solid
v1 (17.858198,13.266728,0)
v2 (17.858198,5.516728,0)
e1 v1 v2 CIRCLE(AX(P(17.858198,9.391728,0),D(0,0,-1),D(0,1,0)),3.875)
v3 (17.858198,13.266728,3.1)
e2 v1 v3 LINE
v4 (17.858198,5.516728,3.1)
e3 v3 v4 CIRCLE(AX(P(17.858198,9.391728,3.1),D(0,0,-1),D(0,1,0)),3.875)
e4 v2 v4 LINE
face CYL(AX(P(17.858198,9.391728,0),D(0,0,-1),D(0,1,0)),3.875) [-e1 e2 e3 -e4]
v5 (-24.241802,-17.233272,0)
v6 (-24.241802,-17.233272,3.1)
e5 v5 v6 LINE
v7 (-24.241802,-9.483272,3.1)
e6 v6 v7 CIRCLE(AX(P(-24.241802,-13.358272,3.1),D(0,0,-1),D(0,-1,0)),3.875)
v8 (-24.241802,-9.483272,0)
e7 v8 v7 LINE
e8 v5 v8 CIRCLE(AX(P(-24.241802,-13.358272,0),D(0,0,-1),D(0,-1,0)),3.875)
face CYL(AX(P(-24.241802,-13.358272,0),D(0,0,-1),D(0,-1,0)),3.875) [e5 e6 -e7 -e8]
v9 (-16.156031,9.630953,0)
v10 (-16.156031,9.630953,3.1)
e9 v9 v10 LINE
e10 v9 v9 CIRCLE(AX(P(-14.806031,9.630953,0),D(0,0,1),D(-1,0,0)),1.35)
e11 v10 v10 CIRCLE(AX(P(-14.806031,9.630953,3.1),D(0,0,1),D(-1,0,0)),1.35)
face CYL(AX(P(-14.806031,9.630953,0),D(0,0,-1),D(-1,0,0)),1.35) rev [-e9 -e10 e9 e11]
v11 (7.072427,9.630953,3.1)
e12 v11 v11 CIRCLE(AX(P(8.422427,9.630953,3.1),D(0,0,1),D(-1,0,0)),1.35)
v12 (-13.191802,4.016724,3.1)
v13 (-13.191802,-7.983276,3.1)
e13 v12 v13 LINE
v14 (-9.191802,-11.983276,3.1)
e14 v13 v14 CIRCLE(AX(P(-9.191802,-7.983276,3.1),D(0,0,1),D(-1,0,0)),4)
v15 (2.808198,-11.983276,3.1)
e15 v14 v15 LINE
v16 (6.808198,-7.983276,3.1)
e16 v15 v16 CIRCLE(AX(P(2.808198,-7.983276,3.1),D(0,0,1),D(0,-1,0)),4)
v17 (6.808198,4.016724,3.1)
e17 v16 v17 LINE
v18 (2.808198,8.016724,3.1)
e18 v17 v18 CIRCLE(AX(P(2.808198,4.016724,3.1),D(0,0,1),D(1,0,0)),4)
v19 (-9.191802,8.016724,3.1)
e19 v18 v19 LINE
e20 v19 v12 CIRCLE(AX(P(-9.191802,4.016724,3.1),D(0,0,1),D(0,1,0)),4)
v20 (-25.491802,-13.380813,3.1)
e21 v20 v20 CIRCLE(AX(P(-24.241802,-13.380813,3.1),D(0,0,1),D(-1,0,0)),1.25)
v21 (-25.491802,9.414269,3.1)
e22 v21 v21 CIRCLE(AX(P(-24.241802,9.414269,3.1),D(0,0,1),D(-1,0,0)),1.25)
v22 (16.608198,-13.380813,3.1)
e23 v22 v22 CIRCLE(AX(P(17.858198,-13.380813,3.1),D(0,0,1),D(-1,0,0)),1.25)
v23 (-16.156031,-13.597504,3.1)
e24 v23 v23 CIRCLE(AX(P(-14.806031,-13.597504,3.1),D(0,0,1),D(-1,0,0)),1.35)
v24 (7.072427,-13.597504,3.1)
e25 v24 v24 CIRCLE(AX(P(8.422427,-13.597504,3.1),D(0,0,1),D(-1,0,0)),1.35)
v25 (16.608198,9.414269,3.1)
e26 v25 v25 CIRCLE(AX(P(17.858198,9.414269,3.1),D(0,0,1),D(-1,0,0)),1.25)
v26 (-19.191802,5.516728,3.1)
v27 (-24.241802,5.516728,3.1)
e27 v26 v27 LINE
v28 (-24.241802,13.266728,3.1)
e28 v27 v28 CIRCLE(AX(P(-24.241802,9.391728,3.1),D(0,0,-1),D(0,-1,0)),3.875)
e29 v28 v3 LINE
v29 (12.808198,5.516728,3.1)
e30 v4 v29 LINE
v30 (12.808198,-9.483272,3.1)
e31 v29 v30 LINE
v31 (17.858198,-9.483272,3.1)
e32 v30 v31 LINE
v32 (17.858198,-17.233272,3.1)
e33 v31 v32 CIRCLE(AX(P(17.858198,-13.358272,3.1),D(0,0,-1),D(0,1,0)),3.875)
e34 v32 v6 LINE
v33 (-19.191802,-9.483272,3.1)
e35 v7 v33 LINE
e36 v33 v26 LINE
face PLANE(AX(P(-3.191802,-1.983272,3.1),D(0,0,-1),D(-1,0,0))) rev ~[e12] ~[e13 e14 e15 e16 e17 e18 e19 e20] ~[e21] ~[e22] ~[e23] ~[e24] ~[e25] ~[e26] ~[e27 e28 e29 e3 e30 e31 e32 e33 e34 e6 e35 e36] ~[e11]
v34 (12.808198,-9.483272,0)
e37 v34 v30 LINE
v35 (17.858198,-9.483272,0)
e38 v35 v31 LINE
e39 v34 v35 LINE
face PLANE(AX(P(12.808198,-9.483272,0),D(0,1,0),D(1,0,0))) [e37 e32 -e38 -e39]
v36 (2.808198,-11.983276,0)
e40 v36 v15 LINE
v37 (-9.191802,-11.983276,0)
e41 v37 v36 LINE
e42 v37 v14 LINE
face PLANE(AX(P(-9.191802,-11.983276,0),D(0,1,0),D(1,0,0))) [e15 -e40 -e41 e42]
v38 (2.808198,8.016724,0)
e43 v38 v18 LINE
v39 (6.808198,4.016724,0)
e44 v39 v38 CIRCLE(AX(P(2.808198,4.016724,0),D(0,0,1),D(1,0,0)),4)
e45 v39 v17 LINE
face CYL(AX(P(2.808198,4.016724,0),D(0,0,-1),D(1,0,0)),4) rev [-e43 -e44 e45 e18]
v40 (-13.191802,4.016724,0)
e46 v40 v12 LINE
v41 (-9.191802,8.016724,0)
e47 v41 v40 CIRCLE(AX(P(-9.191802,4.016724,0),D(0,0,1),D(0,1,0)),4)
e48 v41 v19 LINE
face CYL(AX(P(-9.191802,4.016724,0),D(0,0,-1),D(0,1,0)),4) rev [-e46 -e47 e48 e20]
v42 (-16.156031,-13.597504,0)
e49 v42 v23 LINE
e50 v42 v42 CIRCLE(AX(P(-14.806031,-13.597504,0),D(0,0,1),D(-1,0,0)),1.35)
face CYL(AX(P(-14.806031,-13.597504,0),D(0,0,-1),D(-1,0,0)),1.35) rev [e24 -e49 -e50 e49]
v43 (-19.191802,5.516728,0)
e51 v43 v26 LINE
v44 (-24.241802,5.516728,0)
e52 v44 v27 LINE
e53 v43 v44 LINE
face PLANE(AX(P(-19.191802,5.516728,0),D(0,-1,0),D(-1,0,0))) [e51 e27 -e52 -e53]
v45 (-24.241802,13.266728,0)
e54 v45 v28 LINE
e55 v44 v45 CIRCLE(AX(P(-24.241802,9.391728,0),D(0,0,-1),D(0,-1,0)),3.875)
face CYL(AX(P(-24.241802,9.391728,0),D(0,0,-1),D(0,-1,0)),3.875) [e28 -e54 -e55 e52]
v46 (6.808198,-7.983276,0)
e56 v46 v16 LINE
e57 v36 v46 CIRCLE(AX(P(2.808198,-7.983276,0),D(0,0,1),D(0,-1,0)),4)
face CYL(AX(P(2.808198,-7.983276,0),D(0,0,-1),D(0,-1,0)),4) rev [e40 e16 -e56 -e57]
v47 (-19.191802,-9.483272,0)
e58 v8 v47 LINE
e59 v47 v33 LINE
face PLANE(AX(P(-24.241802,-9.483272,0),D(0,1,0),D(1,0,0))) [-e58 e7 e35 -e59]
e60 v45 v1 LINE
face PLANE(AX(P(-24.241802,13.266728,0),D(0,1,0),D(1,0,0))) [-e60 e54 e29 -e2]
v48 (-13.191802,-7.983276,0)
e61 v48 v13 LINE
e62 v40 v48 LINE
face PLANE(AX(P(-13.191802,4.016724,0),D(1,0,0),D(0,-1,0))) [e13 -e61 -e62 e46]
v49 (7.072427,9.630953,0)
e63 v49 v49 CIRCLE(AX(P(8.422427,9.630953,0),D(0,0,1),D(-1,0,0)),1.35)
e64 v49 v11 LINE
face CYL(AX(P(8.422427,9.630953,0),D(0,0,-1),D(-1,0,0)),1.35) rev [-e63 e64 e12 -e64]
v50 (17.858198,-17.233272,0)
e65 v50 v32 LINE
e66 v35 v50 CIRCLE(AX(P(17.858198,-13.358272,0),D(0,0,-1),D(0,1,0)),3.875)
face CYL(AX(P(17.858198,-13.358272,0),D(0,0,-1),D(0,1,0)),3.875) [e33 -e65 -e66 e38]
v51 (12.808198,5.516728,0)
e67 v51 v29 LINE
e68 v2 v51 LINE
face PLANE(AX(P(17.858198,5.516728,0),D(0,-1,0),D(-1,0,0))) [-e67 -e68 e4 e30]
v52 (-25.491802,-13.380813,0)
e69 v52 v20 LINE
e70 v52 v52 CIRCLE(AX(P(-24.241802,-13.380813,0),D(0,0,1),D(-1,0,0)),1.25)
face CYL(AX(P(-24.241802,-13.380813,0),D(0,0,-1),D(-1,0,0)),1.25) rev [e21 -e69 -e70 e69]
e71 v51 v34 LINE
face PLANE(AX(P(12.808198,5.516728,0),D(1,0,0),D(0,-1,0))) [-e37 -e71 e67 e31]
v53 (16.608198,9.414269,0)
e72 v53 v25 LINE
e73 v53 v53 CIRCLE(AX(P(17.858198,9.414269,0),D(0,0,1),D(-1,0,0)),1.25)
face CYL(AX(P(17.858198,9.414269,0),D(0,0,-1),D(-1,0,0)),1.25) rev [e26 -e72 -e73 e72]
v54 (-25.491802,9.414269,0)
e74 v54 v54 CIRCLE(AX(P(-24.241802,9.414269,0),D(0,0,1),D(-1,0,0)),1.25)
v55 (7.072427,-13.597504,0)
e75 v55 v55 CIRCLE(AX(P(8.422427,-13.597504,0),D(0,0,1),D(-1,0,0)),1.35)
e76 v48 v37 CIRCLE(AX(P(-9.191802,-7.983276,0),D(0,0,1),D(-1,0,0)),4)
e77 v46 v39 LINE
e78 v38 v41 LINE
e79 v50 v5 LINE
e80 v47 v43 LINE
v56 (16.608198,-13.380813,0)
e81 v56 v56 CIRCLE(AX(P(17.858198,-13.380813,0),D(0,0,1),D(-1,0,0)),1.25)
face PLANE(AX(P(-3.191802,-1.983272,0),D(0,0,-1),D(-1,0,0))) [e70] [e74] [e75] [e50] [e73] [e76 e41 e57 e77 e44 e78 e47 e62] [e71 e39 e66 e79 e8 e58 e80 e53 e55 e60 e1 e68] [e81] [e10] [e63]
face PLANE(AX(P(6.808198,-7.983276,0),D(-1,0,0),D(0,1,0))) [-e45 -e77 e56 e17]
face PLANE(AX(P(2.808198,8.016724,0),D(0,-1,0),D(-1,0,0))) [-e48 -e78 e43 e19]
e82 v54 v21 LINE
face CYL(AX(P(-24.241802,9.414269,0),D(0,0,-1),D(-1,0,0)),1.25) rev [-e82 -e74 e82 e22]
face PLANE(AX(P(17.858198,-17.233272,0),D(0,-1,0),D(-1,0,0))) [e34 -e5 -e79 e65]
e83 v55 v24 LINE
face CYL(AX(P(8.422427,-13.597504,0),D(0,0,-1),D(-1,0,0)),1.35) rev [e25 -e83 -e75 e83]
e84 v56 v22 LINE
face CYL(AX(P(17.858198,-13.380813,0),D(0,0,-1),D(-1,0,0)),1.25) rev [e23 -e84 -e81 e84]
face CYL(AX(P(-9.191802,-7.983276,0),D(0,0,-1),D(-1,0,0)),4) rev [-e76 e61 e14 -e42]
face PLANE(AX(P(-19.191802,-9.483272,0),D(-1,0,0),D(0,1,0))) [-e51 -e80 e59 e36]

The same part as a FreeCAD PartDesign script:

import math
import FreeCAD as App
import Part
import Sketcher
from FreeCAD import Vector
Q = App.Units.Quantity

doc = App.newDocument("Part")
body = doc.addObject("PartDesign::Body", "Body")

sketch1 = body.newObject("Sketcher::SketchObject", "Sketch")
sketch1.AttachmentSupport = (doc.getObject("XY_Plane"), [""])
sketch1.MapMode = "FlatFace"
sketch1.addGeometry(Part.LineSegment(Vector(17.9, 13.3, 0), Vector(-24.2, 13.3, 0)), False)
sketch1.addGeometry(Part.ArcOfCircle(Part.Circle(Vector(-24.2, 9.4, 0), Vector(0, 0, 1), 3.9), math.radians(90), math.radians(270)), False)
sketch1.addGeometry(Part.LineSegment(Vector(-24.2, 5.5, 0), Vector(-19.2, 5.5, 0)), False)
sketch1.addGeometry(Part.LineSegment(Vector(-19.2, 5.5, 0), Vector(-19.2, -9.5, 0)), False)
sketch1.addGeometry(Part.LineSegment(Vector(-19.2, -9.5, 0), Vector(-24.2, -9.5, 0)), False)
sketch1.addGeometry(Part.ArcOfCircle(Part.Circle(Vector(-24.2, -13.4, 0), Vector(0, 0, 1), 3.9), math.radians(90), math.radians(270)), False)
sketch1.addGeometry(Part.LineSegment(Vector(-24.2, -17.2, 0), Vector(17.9, -17.2, 0)), False)
sketch1.addGeometry(Part.ArcOfCircle(Part.Circle(Vector(17.9, -13.4, 0), Vector(0, 0, 1), 3.9), math.radians(-90), math.radians(90)), False)
sketch1.addGeometry(Part.LineSegment(Vector(17.9, -9.5, 0), Vector(12.8, -9.5, 0)), False)
sketch1.addGeometry(Part.LineSegment(Vector(12.8, -9.5, 0), Vector(12.8, 5.5, 0)), False)
sketch1.addGeometry(Part.LineSegment(Vector(12.8, 5.5, 0), Vector(17.9, 5.5, 0)), False)
sketch1.addGeometry(Part.ArcOfCircle(Part.Circle(Vector(17.9, 9.4, 0), Vector(0, 0, 1), 3.9), math.radians(-90), math.radians(90)), False)
sketch1.addGeometry(Part.Circle(Vector(17.9, -13.4, 0), Vector(0, 0, 1), 1.2), False)
sketch1.addGeometry(Part.Circle(Vector(8.4, -13.6, 0), Vector(0, 0, 1), 1.4), False)
sketch1.addGeometry(Part.Circle(Vector(-14.8, -13.6, 0), Vector(0, 0, 1), 1.4), False)
sketch1.addGeometry(Part.Circle(Vector(-24.2, -13.4, 0), Vector(0, 0, 1), 1.2), False)
sketch1.addGeometry(Part.Circle(Vector(17.9, 9.4, 0), Vector(0, 0, 1), 1.2), False)
sketch1.addGeometry(Part.Circle(Vector(8.4, 9.6, 0), Vector(0, 0, 1), 1.4), False)
sketch1.addGeometry(Part.ArcOfCircle(Part.Circle(Vector(-9.2, 4, 0), Vector(0, 0, 1), 4), math.radians(90), math.radians(180)), False)
sketch1.addGeometry(Part.LineSegment(Vector(-9.2, 8, 0), Vector(2.8, 8, 0)), False)
sketch1.addGeometry(Part.ArcOfCircle(Part.Circle(Vector(2.8, 4, 0), Vector(0, 0, 1), 4), math.radians(0), math.radians(90)), False)
sketch1.addGeometry(Part.LineSegment(Vector(6.8, 4, 0), Vector(6.8, -8, 0)), False)
sketch1.addGeometry(Part.ArcOfCircle(Part.Circle(Vector(2.8, -8, 0), Vector(0, 0, 1), 4), math.radians(-90), math.radians(0)), False)
sketch1.addGeometry(Part.LineSegment(Vector(2.8, -12, 0), Vector(-9.2, -12, 0)), False)
sketch1.addGeometry(Part.ArcOfCircle(Part.Circle(Vector(-9.2, -8, 0), Vector(0, 0, 1), 4), math.radians(180), math.radians(270)), False)
sketch1.addGeometry(Part.LineSegment(Vector(-13.2, -8, 0), Vector(-13.2, 4, 0)), False)
sketch1.addGeometry(Part.Circle(Vector(-14.8, 9.6, 0), Vector(0, 0, 1), 1.4), False)
sketch1.addGeometry(Part.Circle(Vector(-24.2, 9.4, 0), Vector(0, 0, 1), 1.2), False)
sketch1.addConstraint(Sketcher.Constraint("Tangent", 0, 2, 1, 1))
sketch1.addConstraint(Sketcher.Constraint("Tangent", 1, 2, 2, 1))
sketch1.addConstraint(Sketcher.Constraint("Coincident", 2, 2, 3, 1))
sketch1.addConstraint(Sketcher.Constraint("Coincident", 3, 2, 4, 1))
sketch1.addConstraint(Sketcher.Constraint("Tangent", 4, 2, 5, 1))
sketch1.addConstraint(Sketcher.Constraint("Tangent", 5, 2, 6, 1))
sketch1.addConstraint(Sketcher.Constraint("Tangent", 6, 2, 7, 1))
sketch1.addConstraint(Sketcher.Constraint("Tangent", 7, 2, 8, 1))
sketch1.addConstraint(Sketcher.Constraint("Coincident", 8, 2, 9, 1))
sketch1.addConstraint(Sketcher.Constraint("Coincident", 9, 2, 10, 1))
sketch1.addConstraint(Sketcher.Constraint("Tangent", 10, 2, 11, 1))
sketch1.addConstraint(Sketcher.Constraint("Tangent", 11, 2, 0, 1))
sketch1.addConstraint(Sketcher.Constraint("Tangent", 18, 1, 19, 1))
sketch1.addConstraint(Sketcher.Constraint("Tangent", 19, 2, 20, 2))
sketch1.addConstraint(Sketcher.Constraint("Tangent", 20, 1, 21, 1))
sketch1.addConstraint(Sketcher.Constraint("Tangent", 21, 2, 22, 2))
sketch1.addConstraint(Sketcher.Constraint("Tangent", 22, 1, 23, 1))
sketch1.addConstraint(Sketcher.Constraint("Tangent", 23, 2, 24, 2))
sketch1.addConstraint(Sketcher.Constraint("Tangent", 24, 1, 25, 1))
sketch1.addConstraint(Sketcher.Constraint("Tangent", 25, 2, 18, 2))
sketch1.addConstraint(Sketcher.Constraint("Horizontal", 0))
sketch1.addConstraint(Sketcher.Constraint("Horizontal", 2))
sketch1.addConstraint(Sketcher.Constraint("Vertical", 3))
sketch1.addConstraint(Sketcher.Constraint("Horizontal", 4))
sketch1.addConstraint(Sketcher.Constraint("Horizontal", 6))
sketch1.addConstraint(Sketcher.Constraint("Horizontal", 8))
sketch1.addConstraint(Sketcher.Constraint("Vertical", 9))
sketch1.addConstraint(Sketcher.Constraint("Horizontal", 10))
sketch1.addConstraint(Sketcher.Constraint("Horizontal", 19))
sketch1.addConstraint(Sketcher.Constraint("Vertical", 21))
sketch1.addConstraint(Sketcher.Constraint("Horizontal", 23))
sketch1.addConstraint(Sketcher.Constraint("Vertical", 25))
sketch1.addConstraint(Sketcher.Constraint("Equal", 1, 5))
sketch1.addConstraint(Sketcher.Constraint("Equal", 5, 7))
sketch1.addConstraint(Sketcher.Constraint("Equal", 7, 11))
sketch1.addConstraint(Sketcher.Constraint("Equal", 13, 14))
sketch1.addConstraint(Sketcher.Constraint("Equal", 12, 15))
sketch1.addConstraint(Sketcher.Constraint("Equal", 15, 16))
sketch1.addConstraint(Sketcher.Constraint("Equal", 14, 17))
sketch1.addConstraint(Sketcher.Constraint("Equal", 18, 20))
sketch1.addConstraint(Sketcher.Constraint("Equal", 20, 22))
sketch1.addConstraint(Sketcher.Constraint("Equal", 22, 24))
sketch1.addConstraint(Sketcher.Constraint("Equal", 17, 26))
sketch1.addConstraint(Sketcher.Constraint("Equal", 16, 27))
sketch1.addConstraint(Sketcher.Constraint("Horizontal", 13, 3, 14, 3))
sketch1.addConstraint(Sketcher.Constraint("Horizontal", 12, 3, 15, 3))
sketch1.addConstraint(Sketcher.Constraint("Horizontal", 17, 3, 26, 3))
sketch1.addConstraint(Sketcher.Constraint("Horizontal", 16, 3, 27, 3))
sketch1.addConstraint(Sketcher.Constraint("Vertical", 1, 3, 5, 3))
sketch1.addConstraint(Sketcher.Constraint("Vertical", 7, 3, 11, 3))
sketch1.addConstraint(Sketcher.Constraint("Vertical", 11, 3, 12, 3))
sketch1.addConstraint(Sketcher.Constraint("Vertical", 5, 3, 15, 3))
sketch1.addConstraint(Sketcher.Constraint("Vertical", 12, 3, 16, 3))
sketch1.addConstraint(Sketcher.Constraint("Vertical", 13, 3, 17, 3))
sketch1.addConstraint(Sketcher.Constraint("Vertical", 14, 3, 26, 3))
sketch1.addConstraint(Sketcher.Constraint("Vertical", 15, 3, 27, 3))
sketch1.addConstraint(Sketcher.Constraint("Equal", 4, 8))
sketch1.addConstraint(Sketcher.Constraint("Equal", 23, 21))
sketch1.addConstraint(Sketcher.Constraint("Radius", 18, Q("4 mm")))
sketch1.addConstraint(Sketcher.Constraint("Diameter", 12, Q("2.5 mm")))
sketch1.addConstraint(Sketcher.Constraint("Diameter", 13, Q("2.7 mm")))
sketch1.addConstraint(Sketcher.Constraint("DistanceX", 19, 1, 19, 2, Q("12 mm")))
sketch1.addConstraint(Sketcher.Constraint("DistanceY", 3, 2, 3, 1, Q("15 mm")))
sketch1.addConstraint(Sketcher.Constraint("DistanceX", 0, 2, 0, 1, Q("42.1 mm")))
sketch1.addConstraint(Sketcher.Constraint("Radius", 1, Q("3.875 mm")))
sketch1.addConstraint(Sketcher.Constraint("DistanceX", 3, 2, 24, 3, Q("10 mm")))
sketch1.addConstraint(Sketcher.Constraint("DistanceX", 20, 3, 9, 2, Q("10 mm")))
sketch1.addConstraint(Sketcher.Constraint("DistanceY", -1, 1, 1, 3, Q("9.391728 mm")))
sketch1.addConstraint(Sketcher.Constraint("DistanceX", 14, 3, -1, 1, Q("14.806031 mm")))
sketch1.addConstraint(Sketcher.Constraint("DistanceY", -1, 1, 16, 3, Q("9.414269 mm")))
sketch1.addConstraint(Sketcher.Constraint("DistanceY", 12, 3, 7, 3, Q("0.022541 mm")))
sketch1.addConstraint(Sketcher.Constraint("DistanceX", 13, 3, 12, 3, Q("9.435771 mm")))
sketch1.addConstraint(Sketcher.Constraint("DistanceY", 13, 3, 12, 3, Q("0.216691 mm")))
sketch1.addConstraint(Sketcher.Constraint("DistanceX", 5, 3, 14, 3, Q("9.435771 mm")))
sketch1.addConstraint(Sketcher.Constraint("DistanceY", 14, 3, 18, 3, Q("17.614229 mm")))
sketch1.addConstraint(Sketcher.Constraint("DistanceY", 18, 3, 17, 3, Q("5.614229 mm")))
pad1 = body.newObject("PartDesign::Pad", "Pad")
pad1.Profile = sketch1
pad1.Length = 3.1

doc.recompute()
